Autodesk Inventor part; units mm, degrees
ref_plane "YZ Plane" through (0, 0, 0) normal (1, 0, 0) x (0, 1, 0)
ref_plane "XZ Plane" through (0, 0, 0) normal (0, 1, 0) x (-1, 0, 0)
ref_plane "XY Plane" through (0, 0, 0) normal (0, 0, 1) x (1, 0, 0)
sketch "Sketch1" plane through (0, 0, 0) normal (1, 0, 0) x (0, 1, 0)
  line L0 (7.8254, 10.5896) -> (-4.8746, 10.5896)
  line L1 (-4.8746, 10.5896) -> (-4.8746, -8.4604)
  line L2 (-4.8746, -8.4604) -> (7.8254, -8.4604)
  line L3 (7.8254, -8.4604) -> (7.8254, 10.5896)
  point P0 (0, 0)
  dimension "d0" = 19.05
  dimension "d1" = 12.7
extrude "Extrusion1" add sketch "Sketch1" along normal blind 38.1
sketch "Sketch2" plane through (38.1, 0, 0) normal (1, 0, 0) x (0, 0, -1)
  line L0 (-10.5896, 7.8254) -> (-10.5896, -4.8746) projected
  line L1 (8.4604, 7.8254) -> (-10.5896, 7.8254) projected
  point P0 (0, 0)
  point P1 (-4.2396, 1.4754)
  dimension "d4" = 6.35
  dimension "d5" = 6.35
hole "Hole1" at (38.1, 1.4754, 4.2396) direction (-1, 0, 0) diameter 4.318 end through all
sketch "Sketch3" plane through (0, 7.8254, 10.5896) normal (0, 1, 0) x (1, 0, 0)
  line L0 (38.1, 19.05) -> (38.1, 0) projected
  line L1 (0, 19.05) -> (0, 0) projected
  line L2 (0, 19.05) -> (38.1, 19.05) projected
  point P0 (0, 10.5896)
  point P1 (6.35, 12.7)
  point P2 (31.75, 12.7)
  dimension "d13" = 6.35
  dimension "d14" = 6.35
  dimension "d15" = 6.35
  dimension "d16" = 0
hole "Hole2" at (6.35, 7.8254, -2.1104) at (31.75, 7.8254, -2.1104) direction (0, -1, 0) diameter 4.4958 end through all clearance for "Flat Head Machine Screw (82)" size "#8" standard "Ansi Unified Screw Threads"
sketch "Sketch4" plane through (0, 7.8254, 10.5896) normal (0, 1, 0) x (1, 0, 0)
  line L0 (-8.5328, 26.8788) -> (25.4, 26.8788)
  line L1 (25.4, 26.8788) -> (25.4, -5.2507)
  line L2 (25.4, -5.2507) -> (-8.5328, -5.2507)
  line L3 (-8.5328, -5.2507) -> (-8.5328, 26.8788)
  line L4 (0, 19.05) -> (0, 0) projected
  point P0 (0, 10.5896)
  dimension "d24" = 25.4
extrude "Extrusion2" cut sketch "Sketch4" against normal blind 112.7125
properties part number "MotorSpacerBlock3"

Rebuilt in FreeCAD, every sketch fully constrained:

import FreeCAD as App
import Part
import Sketcher
from FreeCAD import Vector
Q = App.Units.Quantity

doc = App.newDocument("Part")
body = doc.addObject("PartDesign::Body", "Body")

# Sketch on YZ plane
sketch1 = body.newObject("Sketcher::SketchObject", "Sketch")
sketch1.AttachmentSupport = (doc.getObject("YZ_Plane"), [""])
sketch1.MapMode = "FlatFace"
sketch1.addGeometry([
    Part.LineSegment(Vector(8, -8, 0), Vector(8, 11, 0)),
    Part.LineSegment(Vector(8, 11, 0), Vector(-5, 11, 0)),
    Part.LineSegment(Vector(-5, 11, 0), Vector(-5, -8, 0)),
    Part.LineSegment(Vector(-5, -8, 0), Vector(8, -8, 0)),
], False)
sketch1.addConstraint([
    Sketcher.Constraint("Coincident", 0, 2, 1, 1),
    Sketcher.Constraint("Coincident", 1, 2, 2, 1),
    Sketcher.Constraint("Coincident", 2, 2, 3, 1),
    Sketcher.Constraint("Coincident", 3, 2, 0, 1),
    Sketcher.Constraint("Vertical", 0),
    Sketcher.Constraint("Horizontal", 1),
    Sketcher.Constraint("Vertical", 2),
    Sketcher.Constraint("Horizontal", 3),
    Sketcher.Constraint("DistanceX", 1, 2, 1, 1, Q("0.5 in")),
    Sketcher.Constraint("DistanceY", 0, 1, 0, 2, Q("0.75 in")),
    Sketcher.Constraint("DistanceX", -1, 1, 0, 2, 7.8254),
    Sketcher.Constraint("DistanceY", -1, 1, 0, 2, 10.5896),
])
pad1 = body.newObject("PartDesign::Pad", "Pad")
pad1.Profile = sketch1
pad1.Length = Q("1.5 in")

# Sketch on YZ plane
sketch2 = body.newObject("Sketcher::SketchObject", "Sketch001")
sketch2.AttachmentSupport = (doc.getObject("YZ_Plane"), [""])
sketch2.MapMode = "FlatFace"
sketch2.AttachmentOffset = App.Placement(Vector(0, 0, 1.5 * 25.4), App.Rotation())
sketch2.addGeometry(Part.Circle(Vector(1.5, 4.2, 0), Vector(0, 0, 1), 2.2), False)
sketch2.addConstraint([
    Sketcher.Constraint("Diameter", 0, Q("0.17 in")),
    Sketcher.Constraint("DistanceX", -1, 1, 0, 3, 1.4754),
    Sketcher.Constraint("DistanceY", -1, 1, 0, 3, 4.2396),
])
doc.recompute()
hole = body.newObject("PartDesign::Hole", "Hole")
hole.Profile = sketch2
hole.ThreadType = "None"
hole.Diameter = Q("0.17 in")
hole.DepthType = "ThroughAll"

# Sketch on XZ plane
sketch3 = body.newObject("Sketcher::SketchObject", "Sketch002")
sketch3.AttachmentSupport = (doc.getObject("XZ_Plane"), [""])
sketch3.MapMode = "FlatFace"
sketch3.AttachmentOffset = App.Placement(Vector(0, 0, -7.8254), App.Rotation())
sketch3.addGeometry([
    Part.Circle(Vector(6.3, -2.1, 0), Vector(0, 0, 1), 2.2),
    Part.Circle(Vector(31.8, -2.1, 0), Vector(0, 0, 1), 2.2),
], False)
sketch3.addConstraint([
    Sketcher.Constraint("Equal", 0, 1),
    Sketcher.Constraint("Horizontal", 0, 3, 1, 3),
    Sketcher.Constraint("Diameter", 0, Q("0.177 in")),
    Sketcher.Constraint("DistanceX", 0, 3, 1, 3, Q("1 in")),
    Sketcher.Constraint("DistanceX", -1, 1, 0, 3, Q("0.25 in")),
    Sketcher.Constraint("DistanceY", 0, 3, -1, 1, 2.1104),
])
doc.recompute()
hole2 = body.newObject("PartDesign::Hole", "Hole001")
hole2.Profile = sketch3
hole2.ThreadType = "None"
hole2.Diameter = Q("0.177 in")
hole2.DepthType = "ThroughAll"
hole2.Reversed = True

# Sketch on XZ plane
sketch4 = body.newObject("Sketcher::SketchObject", "Sketch003")
sketch4.AttachmentSupport = (doc.getObject("XZ_Plane"), [""])
sketch4.MapMode = "FlatFace"
sketch4.AttachmentOffset = App.Placement(Vector(0, 0, -7.8254), App.Rotation())
sketch4.addGeometry([
    Part.LineSegment(Vector(25, -16, 0), Vector(-9, -16, 0)),
    Part.LineSegment(Vector(-9, -16, 0), Vector(-9, 16, 0)),
    Part.LineSegment(Vector(-9, 16, 0), Vector(25, 16, 0)),
    Part.LineSegment(Vector(25, 16, 0), Vector(25, -16, 0)),
], False)
sketch4.addConstraint([
    Sketcher.Constraint("Coincident", 0, 2, 1, 1),
    Sketcher.Constraint("Coincident", 1, 2, 2, 1),
    Sketcher.Constraint("Coincident", 2, 2, 3, 1),
    Sketcher.Constraint("Coincident", 3, 2, 0, 1),
    Sketcher.Constraint("Horizontal", 0),
    Sketcher.Constraint("Vertical", 1),
    Sketcher.Constraint("Horizontal", 2),
    Sketcher.Constraint("Vertical", 3),
    Sketcher.Constraint("DistanceX", -1, 1, 2, 2, Q("1 in")),
    Sketcher.Constraint("DistanceX", 0, 2, 0, 1, 33.9328),
    Sketcher.Constraint("DistanceY", 1, 1, 1, 2, 32.1295),
    Sketcher.Constraint("DistanceY", 0, 2, -1, 1, Q("0.6413 in")),
])
pocket1 = body.newObject("PartDesign::Pocket", "Pocket")
pocket1.Profile = sketch4
pocket1.Length = Q("4.4375 in")
pocket1.Reversed = True

doc.recompute()
